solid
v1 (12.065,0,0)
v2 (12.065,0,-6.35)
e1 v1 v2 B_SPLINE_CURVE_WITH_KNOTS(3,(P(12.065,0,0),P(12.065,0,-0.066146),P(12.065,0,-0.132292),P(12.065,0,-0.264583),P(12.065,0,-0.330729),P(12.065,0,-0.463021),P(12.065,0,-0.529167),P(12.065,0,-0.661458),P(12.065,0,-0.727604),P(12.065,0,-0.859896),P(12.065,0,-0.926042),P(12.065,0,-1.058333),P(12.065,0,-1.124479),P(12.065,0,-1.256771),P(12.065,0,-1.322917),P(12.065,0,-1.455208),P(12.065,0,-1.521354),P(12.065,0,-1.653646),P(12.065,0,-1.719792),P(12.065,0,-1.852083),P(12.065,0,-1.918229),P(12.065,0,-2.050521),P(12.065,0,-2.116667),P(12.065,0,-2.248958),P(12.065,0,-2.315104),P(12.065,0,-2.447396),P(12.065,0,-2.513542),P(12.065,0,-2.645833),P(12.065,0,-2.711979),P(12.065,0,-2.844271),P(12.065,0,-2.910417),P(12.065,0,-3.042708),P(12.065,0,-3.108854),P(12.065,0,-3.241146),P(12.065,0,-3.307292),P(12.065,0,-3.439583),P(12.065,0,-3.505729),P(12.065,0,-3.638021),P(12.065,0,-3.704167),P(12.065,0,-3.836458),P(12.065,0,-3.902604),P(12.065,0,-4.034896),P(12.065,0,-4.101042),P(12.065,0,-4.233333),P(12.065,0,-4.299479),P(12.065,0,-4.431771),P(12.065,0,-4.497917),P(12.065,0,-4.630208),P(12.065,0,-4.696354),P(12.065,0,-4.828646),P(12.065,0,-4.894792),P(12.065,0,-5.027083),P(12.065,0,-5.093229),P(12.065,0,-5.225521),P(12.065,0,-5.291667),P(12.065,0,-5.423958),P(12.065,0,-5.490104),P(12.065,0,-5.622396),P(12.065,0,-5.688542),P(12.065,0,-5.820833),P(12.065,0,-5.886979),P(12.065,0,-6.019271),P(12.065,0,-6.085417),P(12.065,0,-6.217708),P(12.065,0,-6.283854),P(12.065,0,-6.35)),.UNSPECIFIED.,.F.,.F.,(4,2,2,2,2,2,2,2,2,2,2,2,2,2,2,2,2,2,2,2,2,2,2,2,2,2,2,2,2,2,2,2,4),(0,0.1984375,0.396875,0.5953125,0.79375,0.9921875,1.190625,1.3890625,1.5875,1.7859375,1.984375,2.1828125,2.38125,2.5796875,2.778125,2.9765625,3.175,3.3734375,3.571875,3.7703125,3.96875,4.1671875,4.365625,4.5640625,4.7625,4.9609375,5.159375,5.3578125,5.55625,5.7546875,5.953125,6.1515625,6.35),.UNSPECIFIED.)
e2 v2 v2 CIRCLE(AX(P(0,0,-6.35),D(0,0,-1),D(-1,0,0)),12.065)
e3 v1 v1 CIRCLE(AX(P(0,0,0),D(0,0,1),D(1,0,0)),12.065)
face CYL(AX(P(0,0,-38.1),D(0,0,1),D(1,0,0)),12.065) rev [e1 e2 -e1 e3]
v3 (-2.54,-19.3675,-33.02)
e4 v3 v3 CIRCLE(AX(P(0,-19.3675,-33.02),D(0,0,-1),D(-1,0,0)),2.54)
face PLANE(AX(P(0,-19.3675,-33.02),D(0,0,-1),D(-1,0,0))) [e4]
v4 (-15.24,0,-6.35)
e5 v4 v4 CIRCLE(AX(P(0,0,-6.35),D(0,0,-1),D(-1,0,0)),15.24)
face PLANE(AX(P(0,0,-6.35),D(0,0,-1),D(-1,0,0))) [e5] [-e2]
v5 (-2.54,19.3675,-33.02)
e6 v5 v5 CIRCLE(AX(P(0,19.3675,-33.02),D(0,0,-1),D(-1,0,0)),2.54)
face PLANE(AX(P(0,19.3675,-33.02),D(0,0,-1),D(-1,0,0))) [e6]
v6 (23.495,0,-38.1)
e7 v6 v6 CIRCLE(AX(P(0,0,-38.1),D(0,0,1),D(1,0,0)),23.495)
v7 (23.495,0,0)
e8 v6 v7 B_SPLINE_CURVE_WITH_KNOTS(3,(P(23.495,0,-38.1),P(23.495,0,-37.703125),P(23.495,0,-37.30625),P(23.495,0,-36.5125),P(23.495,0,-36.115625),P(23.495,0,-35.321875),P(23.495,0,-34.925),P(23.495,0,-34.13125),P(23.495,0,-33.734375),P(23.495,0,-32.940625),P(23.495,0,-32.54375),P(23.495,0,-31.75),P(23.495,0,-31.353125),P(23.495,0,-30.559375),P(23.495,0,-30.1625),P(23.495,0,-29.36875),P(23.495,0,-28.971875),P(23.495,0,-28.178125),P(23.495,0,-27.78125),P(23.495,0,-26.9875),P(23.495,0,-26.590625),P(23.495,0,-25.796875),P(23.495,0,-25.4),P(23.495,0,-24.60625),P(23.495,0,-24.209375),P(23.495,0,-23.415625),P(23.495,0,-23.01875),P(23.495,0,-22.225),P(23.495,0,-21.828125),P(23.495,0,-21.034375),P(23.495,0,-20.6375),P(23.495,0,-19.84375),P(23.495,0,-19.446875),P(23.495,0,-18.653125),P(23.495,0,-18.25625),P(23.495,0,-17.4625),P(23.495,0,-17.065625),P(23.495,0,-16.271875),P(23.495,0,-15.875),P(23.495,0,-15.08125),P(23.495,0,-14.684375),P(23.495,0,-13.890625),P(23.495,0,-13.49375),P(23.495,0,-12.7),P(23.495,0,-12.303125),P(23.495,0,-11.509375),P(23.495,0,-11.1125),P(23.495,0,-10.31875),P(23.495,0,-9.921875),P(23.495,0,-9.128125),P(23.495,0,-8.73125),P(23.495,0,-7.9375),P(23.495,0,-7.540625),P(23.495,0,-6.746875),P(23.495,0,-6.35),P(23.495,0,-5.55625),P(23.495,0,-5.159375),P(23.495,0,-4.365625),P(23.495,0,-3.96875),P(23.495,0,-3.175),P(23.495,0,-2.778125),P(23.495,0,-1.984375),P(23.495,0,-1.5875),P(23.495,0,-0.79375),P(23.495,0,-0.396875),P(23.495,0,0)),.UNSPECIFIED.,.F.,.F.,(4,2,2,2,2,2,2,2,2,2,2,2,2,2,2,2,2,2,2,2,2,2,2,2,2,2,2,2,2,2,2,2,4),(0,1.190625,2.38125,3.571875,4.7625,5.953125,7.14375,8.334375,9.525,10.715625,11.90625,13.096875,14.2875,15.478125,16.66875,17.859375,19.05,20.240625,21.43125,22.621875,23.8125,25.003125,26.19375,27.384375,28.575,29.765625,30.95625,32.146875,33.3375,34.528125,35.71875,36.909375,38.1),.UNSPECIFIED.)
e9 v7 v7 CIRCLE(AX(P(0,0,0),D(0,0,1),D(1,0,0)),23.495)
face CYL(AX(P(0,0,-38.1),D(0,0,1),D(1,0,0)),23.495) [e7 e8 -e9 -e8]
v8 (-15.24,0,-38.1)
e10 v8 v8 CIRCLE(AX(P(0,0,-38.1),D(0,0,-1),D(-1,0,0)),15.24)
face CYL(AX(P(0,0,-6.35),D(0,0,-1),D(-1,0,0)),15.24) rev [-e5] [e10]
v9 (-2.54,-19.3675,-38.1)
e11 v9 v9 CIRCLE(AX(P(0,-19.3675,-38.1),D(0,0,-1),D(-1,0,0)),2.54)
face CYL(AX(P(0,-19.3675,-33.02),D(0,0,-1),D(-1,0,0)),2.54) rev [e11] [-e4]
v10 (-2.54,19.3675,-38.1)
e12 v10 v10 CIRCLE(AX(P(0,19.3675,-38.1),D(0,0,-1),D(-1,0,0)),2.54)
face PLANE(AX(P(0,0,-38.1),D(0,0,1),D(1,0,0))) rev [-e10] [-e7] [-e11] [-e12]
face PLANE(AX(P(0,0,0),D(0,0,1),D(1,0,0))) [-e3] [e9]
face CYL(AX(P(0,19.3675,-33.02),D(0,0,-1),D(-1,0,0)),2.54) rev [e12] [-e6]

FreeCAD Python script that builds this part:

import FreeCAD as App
import Part
import Sketcher
Q = App.Units.Quantity

doc = App.newDocument("Part")
body = doc.addObject("PartDesign::Body", "Body")

# Sketch on XY plane
sketch1 = body.newObject("Sketcher::SketchObject", "Sketch")
sketch1.AttachmentSupport = (doc.getObject("XY_Plane"), [""])
sketch1.MapMode = "FlatFace"
sketch1.addGeometry(Part.Circle(App.Vector(0, 0, 0), App.Vector(0, 0, 1), 23), False)
sketch1.addGeometry(Part.Circle(App.Vector(0, 0, 0), App.Vector(0, 0, 1), 12), False)
sketch1.addConstraint(Sketcher.Constraint("Coincident", 0, 3, -1, 1))
sketch1.addConstraint(Sketcher.Constraint("Coincident", 1, 3, -1, 1))
sketch1.addConstraint(Sketcher.Constraint("Diameter", 0, Q("1.85 in")))
sketch1.addConstraint(Sketcher.Constraint("Diameter", 1, Q("0.95 in")))
pad1 = body.newObject("PartDesign::Pad", "Pad")
pad1.Profile = sketch1
pad1.Length = Q("1.5 in")
pad1.Reversed = True

# Sketch on XY plane
sketch2 = body.newObject("Sketcher::SketchObject", "Sketch001")
sketch2.AttachmentSupport = (doc.getObject("XY_Plane"), [""])
sketch2.MapMode = "FlatFace"
sketch2.AttachmentOffset = App.Placement(App.Vector(0, 0, -0.25 * 25.4), App.Rotation())
sketch2.addGeometry(Part.Circle(App.Vector(0, 0, 0), App.Vector(0, 0, 1), 15), False)
sketch2.addGeometry(Part.Circle(App.Vector(0, 0, 0), App.Vector(0, 0, 1), 12), False)
sketch2.addConstraint(Sketcher.Constraint("Coincident", 0, 3, -1, 1))
sketch2.addConstraint(Sketcher.Constraint("Coincident", 1, 3, -1, 1))
sketch2.addConstraint(Sketcher.Constraint("Diameter", 0, Q("1.2 in")))
sketch2.addConstraint(Sketcher.Constraint("Diameter", 1, Q("0.95 in")))
pocket1 = body.newObject("PartDesign::Pocket", "Pocket")
pocket1.Profile = sketch2
pocket1.Length = Q("1.25 in")

# Sketch on XY plane
sketch3 = body.newObject("Sketcher::SketchObject", "Sketch002")
sketch3.AttachmentSupport = (doc.getObject("XY_Plane"), [""])
sketch3.MapMode = "FlatFace"
sketch3.AttachmentOffset = App.Placement(App.Vector(0, 0, -1.5 * 25.4), App.Rotation())
sketch3.addGeometry(Part.Circle(App.Vector(0, 19.4, 0), App.Vector(0, 0, 1), 2.5), False)
sketch3.addGeometry(Part.Circle(App.Vector(0, -19.4, 0), App.Vector(0, 0, 1), 2.5), False)
sketch3.addConstraint(Sketcher.Constraint("Equal", 0, 1))
sketch3.addConstraint(Sketcher.Constraint("Symmetric", 0, 3, 1, 3, -1, 1))
sketch3.addConstraint(Sketcher.Constraint("PointOnObject", 0, 3, -2))
sketch3.addConstraint(Sketcher.Constraint("Diameter", 0, Q("0.2 in")))
sketch3.addConstraint(Sketcher.Constraint("DistanceY", 1, 3, 0, 3, Q("1.525 in")))
pocket2 = body.newObject("PartDesign::Pocket", "Pocket001")
pocket2.Profile = sketch3
pocket2.Length = Q("0.2 in")
pocket2.Reversed = True

doc.recompute()
